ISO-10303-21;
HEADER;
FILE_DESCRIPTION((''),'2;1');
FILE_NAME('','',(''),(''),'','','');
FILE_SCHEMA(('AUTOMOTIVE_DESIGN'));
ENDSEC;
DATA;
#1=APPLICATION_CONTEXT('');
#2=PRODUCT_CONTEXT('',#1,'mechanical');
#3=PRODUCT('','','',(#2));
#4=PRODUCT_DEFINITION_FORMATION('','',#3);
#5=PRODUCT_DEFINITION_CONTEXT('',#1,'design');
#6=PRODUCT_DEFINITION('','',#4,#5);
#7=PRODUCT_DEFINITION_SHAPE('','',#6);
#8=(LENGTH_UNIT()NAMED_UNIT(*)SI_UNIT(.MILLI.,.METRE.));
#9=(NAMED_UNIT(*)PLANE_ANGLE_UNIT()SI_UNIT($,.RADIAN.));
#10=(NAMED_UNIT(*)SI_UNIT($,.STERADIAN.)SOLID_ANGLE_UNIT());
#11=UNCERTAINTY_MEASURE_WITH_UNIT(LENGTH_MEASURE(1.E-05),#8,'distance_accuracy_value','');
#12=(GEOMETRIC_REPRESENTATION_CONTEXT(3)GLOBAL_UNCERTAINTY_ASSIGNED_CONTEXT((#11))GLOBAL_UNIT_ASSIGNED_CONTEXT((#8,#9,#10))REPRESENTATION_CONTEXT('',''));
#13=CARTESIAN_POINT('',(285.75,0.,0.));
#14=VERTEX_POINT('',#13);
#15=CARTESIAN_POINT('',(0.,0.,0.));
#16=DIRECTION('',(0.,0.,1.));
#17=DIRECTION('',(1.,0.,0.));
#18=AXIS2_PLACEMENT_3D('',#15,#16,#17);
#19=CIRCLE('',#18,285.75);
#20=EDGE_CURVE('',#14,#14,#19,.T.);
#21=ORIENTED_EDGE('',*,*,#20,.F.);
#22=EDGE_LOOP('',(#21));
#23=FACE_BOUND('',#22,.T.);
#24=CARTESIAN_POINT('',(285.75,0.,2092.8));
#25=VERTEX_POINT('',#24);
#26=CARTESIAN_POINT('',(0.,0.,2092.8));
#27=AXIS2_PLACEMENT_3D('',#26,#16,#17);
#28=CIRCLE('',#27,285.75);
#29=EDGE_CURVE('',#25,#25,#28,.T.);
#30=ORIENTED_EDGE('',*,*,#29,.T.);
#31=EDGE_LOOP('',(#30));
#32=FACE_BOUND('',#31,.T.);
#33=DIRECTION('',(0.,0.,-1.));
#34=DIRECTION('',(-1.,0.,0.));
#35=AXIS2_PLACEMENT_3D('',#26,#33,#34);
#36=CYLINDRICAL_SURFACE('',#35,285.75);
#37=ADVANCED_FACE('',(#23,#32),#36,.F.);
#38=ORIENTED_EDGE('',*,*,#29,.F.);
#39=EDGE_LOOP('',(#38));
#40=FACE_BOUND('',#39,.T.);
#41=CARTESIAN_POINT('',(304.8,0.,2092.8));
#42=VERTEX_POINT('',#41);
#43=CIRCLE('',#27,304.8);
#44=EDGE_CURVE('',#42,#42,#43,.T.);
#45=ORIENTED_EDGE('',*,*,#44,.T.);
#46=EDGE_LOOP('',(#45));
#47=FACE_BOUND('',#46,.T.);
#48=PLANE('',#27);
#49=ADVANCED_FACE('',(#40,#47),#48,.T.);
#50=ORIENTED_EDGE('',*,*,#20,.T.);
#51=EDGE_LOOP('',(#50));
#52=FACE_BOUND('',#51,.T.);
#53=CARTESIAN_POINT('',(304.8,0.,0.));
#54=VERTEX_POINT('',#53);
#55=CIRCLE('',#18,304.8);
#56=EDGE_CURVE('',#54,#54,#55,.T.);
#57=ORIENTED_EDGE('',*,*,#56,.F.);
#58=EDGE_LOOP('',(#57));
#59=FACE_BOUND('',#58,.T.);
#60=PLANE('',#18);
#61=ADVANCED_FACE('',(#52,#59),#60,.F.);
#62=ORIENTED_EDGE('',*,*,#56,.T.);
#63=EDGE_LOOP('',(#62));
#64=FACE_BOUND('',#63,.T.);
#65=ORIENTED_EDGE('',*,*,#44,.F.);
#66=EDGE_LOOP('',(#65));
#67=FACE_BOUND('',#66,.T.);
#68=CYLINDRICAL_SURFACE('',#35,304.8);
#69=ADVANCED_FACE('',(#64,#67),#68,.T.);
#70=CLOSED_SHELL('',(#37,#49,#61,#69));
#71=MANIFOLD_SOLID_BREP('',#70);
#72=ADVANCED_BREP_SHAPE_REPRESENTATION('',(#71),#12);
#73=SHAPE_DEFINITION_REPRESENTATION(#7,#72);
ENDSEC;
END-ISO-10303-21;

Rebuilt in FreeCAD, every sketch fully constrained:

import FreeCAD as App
import Part
import Sketcher

V = App.Vector
Q = App.Units.Quantity

doc = App.newDocument("Part")
params = doc.addObject("Spreadsheet::Sheet", "Params")
for row, (alias, value) in enumerate([
    ("sketch1_diameter", "24 in"),
    ("sketch1_diameter2", "22.5 in"),
    ("pad1_length", "2092.8 mm"),
], start=1):
    params.set(f"A{row}", alias)
    params.set(f"B{row}", "=" + value)
    params.setAlias(f"B{row}", alias)

body = doc.addObject("PartDesign::Body", "Body")

sketch1 = doc.addObject("Sketcher::SketchObject", "Sketch")
body.addObject(sketch1)
sketch1.AttachmentSupport = (doc.XY_Plane, [""])
sketch1.MapMode = "FlatFace"
sketch1.addGeometry(Part.Circle(V(0, 0, 0), V(0, 0, 1), 305), False)
sketch1.addGeometry(Part.Circle(V(0, 0, 0), V(0, 0, 1), 286), False)
sketch1.addConstraint(Sketcher.Constraint("Coincident", 0, 3, -1, 1))
sketch1.addConstraint(Sketcher.Constraint("Coincident", 1, 3, -1, 1))
sketch1.addConstraint(Sketcher.Constraint("Diameter", 0, Q("24 in")))
sketch1.addConstraint(Sketcher.Constraint("Diameter", 1, Q("22.5 in")))
sketch1.setExpression("Constraints[2]", "Params.sketch1_diameter")
sketch1.setExpression("Constraints[3]", "Params.sketch1_diameter2")
pad1 = doc.addObject("PartDesign::Pad", "Pad")
body.addObject(pad1)
pad1.Profile = sketch1
pad1.setExpression("Length", "Params.pad1_length")

doc.recompute()
